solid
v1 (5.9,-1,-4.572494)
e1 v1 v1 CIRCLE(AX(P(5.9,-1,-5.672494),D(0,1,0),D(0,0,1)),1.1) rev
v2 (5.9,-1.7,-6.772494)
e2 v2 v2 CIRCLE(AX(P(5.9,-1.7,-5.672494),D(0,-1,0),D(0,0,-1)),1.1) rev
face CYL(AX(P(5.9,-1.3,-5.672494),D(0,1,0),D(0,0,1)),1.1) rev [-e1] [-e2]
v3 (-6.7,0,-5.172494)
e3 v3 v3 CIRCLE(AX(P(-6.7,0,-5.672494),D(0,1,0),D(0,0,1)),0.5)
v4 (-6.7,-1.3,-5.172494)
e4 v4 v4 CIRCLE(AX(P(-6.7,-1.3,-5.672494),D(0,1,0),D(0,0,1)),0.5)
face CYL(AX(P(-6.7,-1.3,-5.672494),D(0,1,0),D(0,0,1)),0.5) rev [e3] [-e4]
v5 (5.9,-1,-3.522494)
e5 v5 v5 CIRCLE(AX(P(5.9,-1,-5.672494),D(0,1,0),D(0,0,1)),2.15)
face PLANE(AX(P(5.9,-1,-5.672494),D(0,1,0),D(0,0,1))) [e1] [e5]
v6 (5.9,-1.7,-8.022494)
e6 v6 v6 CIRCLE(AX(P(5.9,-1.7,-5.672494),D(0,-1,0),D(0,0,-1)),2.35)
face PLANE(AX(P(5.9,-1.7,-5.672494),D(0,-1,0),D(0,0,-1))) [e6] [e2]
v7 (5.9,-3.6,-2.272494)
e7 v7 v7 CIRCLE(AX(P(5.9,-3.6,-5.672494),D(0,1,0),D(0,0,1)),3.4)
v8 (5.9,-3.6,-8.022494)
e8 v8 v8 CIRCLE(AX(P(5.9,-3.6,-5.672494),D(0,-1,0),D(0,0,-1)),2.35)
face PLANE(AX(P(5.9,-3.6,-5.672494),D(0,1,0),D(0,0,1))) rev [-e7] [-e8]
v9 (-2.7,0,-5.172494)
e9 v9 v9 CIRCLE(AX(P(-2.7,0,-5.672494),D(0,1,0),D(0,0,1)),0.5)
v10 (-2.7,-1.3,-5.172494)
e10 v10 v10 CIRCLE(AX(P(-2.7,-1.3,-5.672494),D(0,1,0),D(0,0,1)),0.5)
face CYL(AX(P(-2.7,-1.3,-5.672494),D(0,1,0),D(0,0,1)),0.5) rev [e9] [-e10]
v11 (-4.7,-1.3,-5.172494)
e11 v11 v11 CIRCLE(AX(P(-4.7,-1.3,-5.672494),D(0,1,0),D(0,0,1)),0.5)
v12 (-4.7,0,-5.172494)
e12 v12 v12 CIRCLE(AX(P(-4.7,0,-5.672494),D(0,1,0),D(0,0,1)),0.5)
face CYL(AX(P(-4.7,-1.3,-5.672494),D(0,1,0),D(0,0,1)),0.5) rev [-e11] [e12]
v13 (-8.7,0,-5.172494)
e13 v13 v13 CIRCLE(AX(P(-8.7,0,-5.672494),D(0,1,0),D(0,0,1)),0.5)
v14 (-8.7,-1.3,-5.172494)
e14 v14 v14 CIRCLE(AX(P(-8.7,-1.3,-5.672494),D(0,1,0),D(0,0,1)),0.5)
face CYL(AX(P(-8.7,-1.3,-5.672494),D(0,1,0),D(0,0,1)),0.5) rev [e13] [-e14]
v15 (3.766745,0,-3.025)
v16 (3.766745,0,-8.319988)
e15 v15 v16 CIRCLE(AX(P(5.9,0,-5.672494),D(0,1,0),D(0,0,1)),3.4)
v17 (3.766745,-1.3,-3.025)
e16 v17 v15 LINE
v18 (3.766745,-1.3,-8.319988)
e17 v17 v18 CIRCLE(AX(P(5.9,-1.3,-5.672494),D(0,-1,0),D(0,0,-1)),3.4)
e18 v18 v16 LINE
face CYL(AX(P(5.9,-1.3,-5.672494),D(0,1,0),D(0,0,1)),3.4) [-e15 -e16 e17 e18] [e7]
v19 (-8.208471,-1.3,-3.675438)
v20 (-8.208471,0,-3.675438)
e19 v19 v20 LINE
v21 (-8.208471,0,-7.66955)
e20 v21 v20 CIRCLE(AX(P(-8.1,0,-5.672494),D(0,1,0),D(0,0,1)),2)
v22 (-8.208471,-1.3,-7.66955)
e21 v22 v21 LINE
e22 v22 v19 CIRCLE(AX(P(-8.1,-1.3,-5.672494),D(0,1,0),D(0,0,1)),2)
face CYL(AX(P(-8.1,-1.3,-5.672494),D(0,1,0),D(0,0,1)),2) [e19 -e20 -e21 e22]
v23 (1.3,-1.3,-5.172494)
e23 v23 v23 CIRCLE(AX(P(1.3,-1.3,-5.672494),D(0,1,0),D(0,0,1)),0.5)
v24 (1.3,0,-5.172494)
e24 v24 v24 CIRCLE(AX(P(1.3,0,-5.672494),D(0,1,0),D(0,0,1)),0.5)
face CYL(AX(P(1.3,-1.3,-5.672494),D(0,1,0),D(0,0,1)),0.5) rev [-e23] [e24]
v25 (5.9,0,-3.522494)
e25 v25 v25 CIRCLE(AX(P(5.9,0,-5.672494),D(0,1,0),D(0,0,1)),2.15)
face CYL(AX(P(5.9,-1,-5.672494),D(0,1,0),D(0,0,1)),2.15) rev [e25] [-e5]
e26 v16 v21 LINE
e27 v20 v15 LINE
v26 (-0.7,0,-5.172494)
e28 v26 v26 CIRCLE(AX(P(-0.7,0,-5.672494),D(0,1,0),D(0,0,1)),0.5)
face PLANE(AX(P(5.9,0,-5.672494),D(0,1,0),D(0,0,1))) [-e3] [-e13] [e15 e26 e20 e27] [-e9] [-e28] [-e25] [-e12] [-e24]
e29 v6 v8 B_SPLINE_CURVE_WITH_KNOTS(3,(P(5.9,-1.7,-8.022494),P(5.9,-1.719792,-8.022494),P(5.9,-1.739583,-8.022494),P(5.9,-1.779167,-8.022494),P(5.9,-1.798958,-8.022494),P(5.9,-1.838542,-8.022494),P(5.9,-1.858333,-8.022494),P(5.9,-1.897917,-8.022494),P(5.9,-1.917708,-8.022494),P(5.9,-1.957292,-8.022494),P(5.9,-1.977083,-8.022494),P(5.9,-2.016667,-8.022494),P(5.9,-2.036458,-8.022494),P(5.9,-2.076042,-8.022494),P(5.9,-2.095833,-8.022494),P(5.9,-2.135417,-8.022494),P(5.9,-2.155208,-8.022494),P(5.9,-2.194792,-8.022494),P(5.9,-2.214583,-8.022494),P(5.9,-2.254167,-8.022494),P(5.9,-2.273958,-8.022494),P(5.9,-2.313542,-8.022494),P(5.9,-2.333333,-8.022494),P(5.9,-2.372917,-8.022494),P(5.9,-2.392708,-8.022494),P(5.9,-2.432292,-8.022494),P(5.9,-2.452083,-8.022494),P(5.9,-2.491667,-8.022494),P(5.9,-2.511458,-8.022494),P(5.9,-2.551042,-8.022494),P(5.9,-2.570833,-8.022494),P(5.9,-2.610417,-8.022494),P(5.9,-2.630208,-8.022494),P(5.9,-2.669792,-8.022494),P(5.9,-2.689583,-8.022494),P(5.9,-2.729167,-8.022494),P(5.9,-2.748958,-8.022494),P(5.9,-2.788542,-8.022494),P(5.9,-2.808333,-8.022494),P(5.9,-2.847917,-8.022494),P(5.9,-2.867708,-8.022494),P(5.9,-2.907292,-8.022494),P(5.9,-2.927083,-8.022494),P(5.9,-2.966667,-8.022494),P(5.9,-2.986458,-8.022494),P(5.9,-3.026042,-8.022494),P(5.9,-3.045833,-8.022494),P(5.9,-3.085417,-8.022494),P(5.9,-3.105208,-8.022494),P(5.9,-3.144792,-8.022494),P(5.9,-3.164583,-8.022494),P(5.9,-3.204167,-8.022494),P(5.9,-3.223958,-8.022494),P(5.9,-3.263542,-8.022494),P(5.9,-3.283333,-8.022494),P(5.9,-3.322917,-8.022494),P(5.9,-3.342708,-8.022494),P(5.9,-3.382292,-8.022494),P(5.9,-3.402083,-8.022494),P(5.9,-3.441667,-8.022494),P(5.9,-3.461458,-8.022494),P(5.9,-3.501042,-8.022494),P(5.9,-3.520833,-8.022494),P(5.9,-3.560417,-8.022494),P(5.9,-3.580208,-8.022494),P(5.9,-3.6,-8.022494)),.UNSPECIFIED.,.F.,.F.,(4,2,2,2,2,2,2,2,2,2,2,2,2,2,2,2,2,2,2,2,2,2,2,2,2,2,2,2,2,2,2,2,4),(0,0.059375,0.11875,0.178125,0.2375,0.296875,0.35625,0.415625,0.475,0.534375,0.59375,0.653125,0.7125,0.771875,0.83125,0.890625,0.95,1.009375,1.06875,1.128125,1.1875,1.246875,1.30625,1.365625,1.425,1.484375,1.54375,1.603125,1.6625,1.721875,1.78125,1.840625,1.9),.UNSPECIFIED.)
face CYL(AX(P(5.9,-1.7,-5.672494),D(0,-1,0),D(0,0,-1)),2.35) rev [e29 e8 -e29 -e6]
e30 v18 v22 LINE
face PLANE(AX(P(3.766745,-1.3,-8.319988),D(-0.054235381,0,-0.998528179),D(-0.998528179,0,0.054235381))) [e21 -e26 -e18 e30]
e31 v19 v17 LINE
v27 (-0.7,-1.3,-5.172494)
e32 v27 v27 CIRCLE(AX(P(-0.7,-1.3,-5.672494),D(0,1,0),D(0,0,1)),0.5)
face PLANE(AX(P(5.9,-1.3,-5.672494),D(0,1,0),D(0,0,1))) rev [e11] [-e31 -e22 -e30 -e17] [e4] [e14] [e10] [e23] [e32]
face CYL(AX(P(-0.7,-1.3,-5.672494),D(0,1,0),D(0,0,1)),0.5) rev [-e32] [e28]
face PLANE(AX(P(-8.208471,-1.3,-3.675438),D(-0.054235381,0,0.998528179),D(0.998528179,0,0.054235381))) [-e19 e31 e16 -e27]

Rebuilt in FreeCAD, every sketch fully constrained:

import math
import FreeCAD as App
import Part
import Sketcher

V = App.Vector

doc = App.newDocument("Part")
params = doc.addObject("Spreadsheet::Sheet", "Params")
for row, (alias, value) in enumerate([
    ("sketch1_diameter", "1 mm"),
    ("sketch1_radius", "2 mm"),
    ("sketch1_diameter2", "2.2 mm"),
    ("sketch1_radius2", "3.4 mm"),
    ("pad1_length", "1.3 mm"),
    ("sketch2_diameter", "4.3 mm"),
    ("pocket1_length", "1 mm"),
    ("sketch3_diameter", "6.8 mm"),
    ("pad2_length", "2.3 mm"),
    ("sketch4_diameter", "4.7 mm"),
    ("pocket2_length", "1.9 mm"),
    ("sketch5_diameter", "2.2 mm"),
], start=1):
    params.set(f"A{row}", alias)
    params.set(f"B{row}", "=" + value)
    params.setAlias(f"B{row}", alias)

body = doc.addObject("PartDesign::Body", "Body")

sketch1 = body.newObject("Sketcher::SketchObject", "Sketch")
sketch1.AttachmentSupport = (doc.getObject("XZ_Plane"), [""])
sketch1.MapMode = "FlatFace"
sketch1.addGeometry(Part.LineSegment(V(3.766745, -8.319988, 0), V(-8.208471, -7.66955, 0)), False)
sketch1.addGeometry(Part.ArcOfCircle(Part.Circle(V(-8.1, -5.672494, 0), V(0, 0, 1), 2), math.radians(93.108984), math.radians(266.891016)), False)
sketch1.addGeometry(Part.LineSegment(V(-8.208471, -3.675438, 0), V(3.766745, -3.025, 0)), False)
sketch1.addGeometry(Part.ArcOfCircle(Part.Circle(V(5.9, -5.672494, 0), V(0, 0, 1), 3.4), math.radians(-128.860605), math.radians(128.860605)), False)
sketch1.addGeometry(Part.Circle(V(-8.7, -5.672494, 0), V(0, 0, 1), 0.5), False)
sketch1.addGeometry(Part.Circle(V(-6.7, -5.672494, 0), V(0, 0, 1), 0.5), False)
sketch1.addGeometry(Part.Circle(V(-4.7, -5.672494, 0), V(0, 0, 1), 0.5), False)
sketch1.addGeometry(Part.Circle(V(-2.7, -5.672494, 0), V(0, 0, 1), 0.5), False)
sketch1.addGeometry(Part.Circle(V(-0.7, -5.672494, 0), V(0, 0, 1), 0.5), False)
sketch1.addGeometry(Part.Circle(V(1.3, -5.672494, 0), V(0, 0, 1), 0.5), False)
sketch1.addGeometry(Part.Circle(V(5.9, -5.672494, 0), V(0, 0, 1), 1.1), False)
sketch1.addConstraint(Sketcher.Constraint("Tangent", 0, 2, 1, 2))
sketch1.addConstraint(Sketcher.Constraint("Tangent", 1, 1, 2, 1))
sketch1.addConstraint(Sketcher.Constraint("Coincident", 2, 2, 3, 2))
sketch1.addConstraint(Sketcher.Constraint("Coincident", 3, 1, 0, 1))
sketch1.addConstraint(Sketcher.Constraint("Coincident", 10, 3, 3, 3))
sketch1.addConstraint(Sketcher.Constraint("Equal", 4, 5))
sketch1.addConstraint(Sketcher.Constraint("Equal", 5, 6))
sketch1.addConstraint(Sketcher.Constraint("Equal", 6, 7))
sketch1.addConstraint(Sketcher.Constraint("Equal", 7, 8))
sketch1.addConstraint(Sketcher.Constraint("Equal", 8, 9))
sketch1.addConstraint(Sketcher.Constraint("Horizontal", 1, 3, 3, 3))
sketch1.addConstraint(Sketcher.Constraint("Horizontal", 3, 3, 4, 3))
sketch1.addConstraint(Sketcher.Constraint("Horizontal", 4, 3, 5, 3))
sketch1.addConstraint(Sketcher.Constraint("Horizontal", 5, 3, 6, 3))
sketch1.addConstraint(Sketcher.Constraint("Horizontal", 6, 3, 7, 3))
sketch1.addConstraint(Sketcher.Constraint("Horizontal", 7, 3, 8, 3))
sketch1.addConstraint(Sketcher.Constraint("Horizontal", 8, 3, 9, 3))
sketch1.addConstraint(Sketcher.Constraint("Vertical", 0, 2, 1, 1))
sketch1.addConstraint(Sketcher.Constraint("Diameter", 4, 1.0))
sketch1.addConstraint(Sketcher.Constraint("Radius", 1, 2.0))
sketch1.addConstraint(Sketcher.Constraint("Diameter", 10, 2.2))
sketch1.addConstraint(Sketcher.Constraint("Radius", 3, 3.4))
sketch1.addConstraint(Sketcher.Constraint("DistanceX", 1, 3, 3, 3, 14.0))
sketch1.addConstraint(Sketcher.Constraint("DistanceX", 4, 3, 5, 3, 2.0))
sketch1.addConstraint(Sketcher.Constraint("DistanceX", 5, 3, 6, 3, 2.0))
sketch1.addConstraint(Sketcher.Constraint("DistanceX", 6, 3, 7, 3, 2.0))
sketch1.addConstraint(Sketcher.Constraint("DistanceX", 7, 3, 8, 3, 2.0))
sketch1.addConstraint(Sketcher.Constraint("DistanceX", 8, 3, 9, 3, 2.0))
sketch1.addConstraint(Sketcher.Constraint("DistanceX", 1, 3, -1, 1, 8.1))
sketch1.addConstraint(Sketcher.Constraint("DistanceX", 4, 3, -1, 1, 8.7))
sketch1.addConstraint(Sketcher.Constraint("DistanceY", 2, 2, -1, 1, 3.025))
sketch1.addConstraint(Sketcher.Constraint("DistanceX", 0, 2, -1, 1, 8.208471))
sketch1.setExpression("Constraints[18]", "Params.sketch1_diameter")
sketch1.setExpression("Constraints[19]", "Params.sketch1_radius")
sketch1.setExpression("Constraints[20]", "Params.sketch1_diameter2")
sketch1.setExpression("Constraints[21]", "Params.sketch1_radius2")
pad1 = body.newObject("PartDesign::Pad", "Pad")
pad1.Profile = sketch1
pad1.setExpression("Length", "Params.pad1_length")

sketch2 = body.newObject("Sketcher::SketchObject", "Sketch001")
sketch2.AttachmentSupport = (doc.getObject("XZ_Plane"), [""])
sketch2.MapMode = "FlatFace"
sketch2.addGeometry(Part.Circle(V(5.9, -5.672494, 0), V(0, 0, 1), 2.15), False)
sketch2.addConstraint(Sketcher.Constraint("Diameter", 0, 4.3))
sketch2.addConstraint(Sketcher.Constraint("DistanceX", -1, 1, 0, 3, 5.9))
sketch2.addConstraint(Sketcher.Constraint("DistanceY", 0, 3, -1, 1, 5.672494))
sketch2.setExpression("Constraints[0]", "Params.sketch2_diameter")
pocket1 = body.newObject("PartDesign::Pocket", "Pocket")
pocket1.Profile = sketch2
pocket1.setExpression("Length", "Params.pocket1_length")
pocket1.Reversed = True

sketch3 = body.newObject("Sketcher::SketchObject", "Sketch002")
sketch3.AttachmentSupport = (doc.getObject("XZ_Plane"), [""])
sketch3.MapMode = "FlatFace"
sketch3.AttachmentOffset = App.Placement(V(0, 0, 1.3), App.Rotation())
sketch3.addGeometry(Part.Circle(V(5.9, -5.672494, 0), V(0, 0, 1), 3.4), False)
sketch3.addConstraint(Sketcher.Constraint("Diameter", 0, 6.8))
sketch3.addConstraint(Sketcher.Constraint("DistanceX", -1, 1, 0, 3, 5.9))
sketch3.addConstraint(Sketcher.Constraint("DistanceY", 0, 3, -1, 1, 5.672494))
sketch3.setExpression("Constraints[0]", "Params.sketch3_diameter")
pad2 = body.newObject("PartDesign::Pad", "Pad001")
pad2.Profile = sketch3
pad2.setExpression("Length", "Params.pad2_length")

sketch4 = body.newObject("Sketcher::SketchObject", "Sketch003")
sketch4.AttachmentSupport = (doc.getObject("XZ_Plane"), [""])
sketch4.MapMode = "FlatFace"
sketch4.AttachmentOffset = App.Placement(V(0, 0, 3.6), App.Rotation())
sketch4.addGeometry(Part.Circle(V(5.9, -5.672494, 0), V(0, 0, 1), 2.35), False)
sketch4.addConstraint(Sketcher.Constraint("Diameter", 0, 4.7))
sketch4.addConstraint(Sketcher.Constraint("DistanceX", -1, 1, 0, 3, 5.9))
sketch4.addConstraint(Sketcher.Constraint("DistanceY", 0, 3, -1, 1, 5.672494))
sketch4.setExpression("Constraints[0]", "Params.sketch4_diameter")
pocket2 = body.newObject("PartDesign::Pocket", "Pocket001")
pocket2.Profile = sketch4
pocket2.setExpression("Length", "Params.pocket2_length")

sketch5 = body.newObject("Sketcher::SketchObject", "Sketch004")
sketch5.AttachmentSupport = (doc.getObject("XZ_Plane"), [""])
sketch5.MapMode = "FlatFace"
sketch5.AttachmentOffset = App.Placement(V(0, 0, 1.3), App.Rotation())
sketch5.addGeometry(Part.Circle(V(5.9, -5.672494, 0), V(0, 0, 1), 1.1), False)
sketch5.addConstraint(Sketcher.Constraint("Diameter", 0, 2.2))
sketch5.addConstraint(Sketcher.Constraint("DistanceX", -1, 1, 0, 3, 5.9))
sketch5.addConstraint(Sketcher.Constraint("DistanceY", 0, 3, -1, 1, 5.672494))
sketch5.setExpression("Constraints[0]", "Params.sketch5_diameter")
pocket3 = body.newObject("PartDesign::Pocket", "Pocket002")
pocket3.Profile = sketch5
pocket3.Type = "UpToFirst"
pocket3.Reversed = True

doc.recompute()
